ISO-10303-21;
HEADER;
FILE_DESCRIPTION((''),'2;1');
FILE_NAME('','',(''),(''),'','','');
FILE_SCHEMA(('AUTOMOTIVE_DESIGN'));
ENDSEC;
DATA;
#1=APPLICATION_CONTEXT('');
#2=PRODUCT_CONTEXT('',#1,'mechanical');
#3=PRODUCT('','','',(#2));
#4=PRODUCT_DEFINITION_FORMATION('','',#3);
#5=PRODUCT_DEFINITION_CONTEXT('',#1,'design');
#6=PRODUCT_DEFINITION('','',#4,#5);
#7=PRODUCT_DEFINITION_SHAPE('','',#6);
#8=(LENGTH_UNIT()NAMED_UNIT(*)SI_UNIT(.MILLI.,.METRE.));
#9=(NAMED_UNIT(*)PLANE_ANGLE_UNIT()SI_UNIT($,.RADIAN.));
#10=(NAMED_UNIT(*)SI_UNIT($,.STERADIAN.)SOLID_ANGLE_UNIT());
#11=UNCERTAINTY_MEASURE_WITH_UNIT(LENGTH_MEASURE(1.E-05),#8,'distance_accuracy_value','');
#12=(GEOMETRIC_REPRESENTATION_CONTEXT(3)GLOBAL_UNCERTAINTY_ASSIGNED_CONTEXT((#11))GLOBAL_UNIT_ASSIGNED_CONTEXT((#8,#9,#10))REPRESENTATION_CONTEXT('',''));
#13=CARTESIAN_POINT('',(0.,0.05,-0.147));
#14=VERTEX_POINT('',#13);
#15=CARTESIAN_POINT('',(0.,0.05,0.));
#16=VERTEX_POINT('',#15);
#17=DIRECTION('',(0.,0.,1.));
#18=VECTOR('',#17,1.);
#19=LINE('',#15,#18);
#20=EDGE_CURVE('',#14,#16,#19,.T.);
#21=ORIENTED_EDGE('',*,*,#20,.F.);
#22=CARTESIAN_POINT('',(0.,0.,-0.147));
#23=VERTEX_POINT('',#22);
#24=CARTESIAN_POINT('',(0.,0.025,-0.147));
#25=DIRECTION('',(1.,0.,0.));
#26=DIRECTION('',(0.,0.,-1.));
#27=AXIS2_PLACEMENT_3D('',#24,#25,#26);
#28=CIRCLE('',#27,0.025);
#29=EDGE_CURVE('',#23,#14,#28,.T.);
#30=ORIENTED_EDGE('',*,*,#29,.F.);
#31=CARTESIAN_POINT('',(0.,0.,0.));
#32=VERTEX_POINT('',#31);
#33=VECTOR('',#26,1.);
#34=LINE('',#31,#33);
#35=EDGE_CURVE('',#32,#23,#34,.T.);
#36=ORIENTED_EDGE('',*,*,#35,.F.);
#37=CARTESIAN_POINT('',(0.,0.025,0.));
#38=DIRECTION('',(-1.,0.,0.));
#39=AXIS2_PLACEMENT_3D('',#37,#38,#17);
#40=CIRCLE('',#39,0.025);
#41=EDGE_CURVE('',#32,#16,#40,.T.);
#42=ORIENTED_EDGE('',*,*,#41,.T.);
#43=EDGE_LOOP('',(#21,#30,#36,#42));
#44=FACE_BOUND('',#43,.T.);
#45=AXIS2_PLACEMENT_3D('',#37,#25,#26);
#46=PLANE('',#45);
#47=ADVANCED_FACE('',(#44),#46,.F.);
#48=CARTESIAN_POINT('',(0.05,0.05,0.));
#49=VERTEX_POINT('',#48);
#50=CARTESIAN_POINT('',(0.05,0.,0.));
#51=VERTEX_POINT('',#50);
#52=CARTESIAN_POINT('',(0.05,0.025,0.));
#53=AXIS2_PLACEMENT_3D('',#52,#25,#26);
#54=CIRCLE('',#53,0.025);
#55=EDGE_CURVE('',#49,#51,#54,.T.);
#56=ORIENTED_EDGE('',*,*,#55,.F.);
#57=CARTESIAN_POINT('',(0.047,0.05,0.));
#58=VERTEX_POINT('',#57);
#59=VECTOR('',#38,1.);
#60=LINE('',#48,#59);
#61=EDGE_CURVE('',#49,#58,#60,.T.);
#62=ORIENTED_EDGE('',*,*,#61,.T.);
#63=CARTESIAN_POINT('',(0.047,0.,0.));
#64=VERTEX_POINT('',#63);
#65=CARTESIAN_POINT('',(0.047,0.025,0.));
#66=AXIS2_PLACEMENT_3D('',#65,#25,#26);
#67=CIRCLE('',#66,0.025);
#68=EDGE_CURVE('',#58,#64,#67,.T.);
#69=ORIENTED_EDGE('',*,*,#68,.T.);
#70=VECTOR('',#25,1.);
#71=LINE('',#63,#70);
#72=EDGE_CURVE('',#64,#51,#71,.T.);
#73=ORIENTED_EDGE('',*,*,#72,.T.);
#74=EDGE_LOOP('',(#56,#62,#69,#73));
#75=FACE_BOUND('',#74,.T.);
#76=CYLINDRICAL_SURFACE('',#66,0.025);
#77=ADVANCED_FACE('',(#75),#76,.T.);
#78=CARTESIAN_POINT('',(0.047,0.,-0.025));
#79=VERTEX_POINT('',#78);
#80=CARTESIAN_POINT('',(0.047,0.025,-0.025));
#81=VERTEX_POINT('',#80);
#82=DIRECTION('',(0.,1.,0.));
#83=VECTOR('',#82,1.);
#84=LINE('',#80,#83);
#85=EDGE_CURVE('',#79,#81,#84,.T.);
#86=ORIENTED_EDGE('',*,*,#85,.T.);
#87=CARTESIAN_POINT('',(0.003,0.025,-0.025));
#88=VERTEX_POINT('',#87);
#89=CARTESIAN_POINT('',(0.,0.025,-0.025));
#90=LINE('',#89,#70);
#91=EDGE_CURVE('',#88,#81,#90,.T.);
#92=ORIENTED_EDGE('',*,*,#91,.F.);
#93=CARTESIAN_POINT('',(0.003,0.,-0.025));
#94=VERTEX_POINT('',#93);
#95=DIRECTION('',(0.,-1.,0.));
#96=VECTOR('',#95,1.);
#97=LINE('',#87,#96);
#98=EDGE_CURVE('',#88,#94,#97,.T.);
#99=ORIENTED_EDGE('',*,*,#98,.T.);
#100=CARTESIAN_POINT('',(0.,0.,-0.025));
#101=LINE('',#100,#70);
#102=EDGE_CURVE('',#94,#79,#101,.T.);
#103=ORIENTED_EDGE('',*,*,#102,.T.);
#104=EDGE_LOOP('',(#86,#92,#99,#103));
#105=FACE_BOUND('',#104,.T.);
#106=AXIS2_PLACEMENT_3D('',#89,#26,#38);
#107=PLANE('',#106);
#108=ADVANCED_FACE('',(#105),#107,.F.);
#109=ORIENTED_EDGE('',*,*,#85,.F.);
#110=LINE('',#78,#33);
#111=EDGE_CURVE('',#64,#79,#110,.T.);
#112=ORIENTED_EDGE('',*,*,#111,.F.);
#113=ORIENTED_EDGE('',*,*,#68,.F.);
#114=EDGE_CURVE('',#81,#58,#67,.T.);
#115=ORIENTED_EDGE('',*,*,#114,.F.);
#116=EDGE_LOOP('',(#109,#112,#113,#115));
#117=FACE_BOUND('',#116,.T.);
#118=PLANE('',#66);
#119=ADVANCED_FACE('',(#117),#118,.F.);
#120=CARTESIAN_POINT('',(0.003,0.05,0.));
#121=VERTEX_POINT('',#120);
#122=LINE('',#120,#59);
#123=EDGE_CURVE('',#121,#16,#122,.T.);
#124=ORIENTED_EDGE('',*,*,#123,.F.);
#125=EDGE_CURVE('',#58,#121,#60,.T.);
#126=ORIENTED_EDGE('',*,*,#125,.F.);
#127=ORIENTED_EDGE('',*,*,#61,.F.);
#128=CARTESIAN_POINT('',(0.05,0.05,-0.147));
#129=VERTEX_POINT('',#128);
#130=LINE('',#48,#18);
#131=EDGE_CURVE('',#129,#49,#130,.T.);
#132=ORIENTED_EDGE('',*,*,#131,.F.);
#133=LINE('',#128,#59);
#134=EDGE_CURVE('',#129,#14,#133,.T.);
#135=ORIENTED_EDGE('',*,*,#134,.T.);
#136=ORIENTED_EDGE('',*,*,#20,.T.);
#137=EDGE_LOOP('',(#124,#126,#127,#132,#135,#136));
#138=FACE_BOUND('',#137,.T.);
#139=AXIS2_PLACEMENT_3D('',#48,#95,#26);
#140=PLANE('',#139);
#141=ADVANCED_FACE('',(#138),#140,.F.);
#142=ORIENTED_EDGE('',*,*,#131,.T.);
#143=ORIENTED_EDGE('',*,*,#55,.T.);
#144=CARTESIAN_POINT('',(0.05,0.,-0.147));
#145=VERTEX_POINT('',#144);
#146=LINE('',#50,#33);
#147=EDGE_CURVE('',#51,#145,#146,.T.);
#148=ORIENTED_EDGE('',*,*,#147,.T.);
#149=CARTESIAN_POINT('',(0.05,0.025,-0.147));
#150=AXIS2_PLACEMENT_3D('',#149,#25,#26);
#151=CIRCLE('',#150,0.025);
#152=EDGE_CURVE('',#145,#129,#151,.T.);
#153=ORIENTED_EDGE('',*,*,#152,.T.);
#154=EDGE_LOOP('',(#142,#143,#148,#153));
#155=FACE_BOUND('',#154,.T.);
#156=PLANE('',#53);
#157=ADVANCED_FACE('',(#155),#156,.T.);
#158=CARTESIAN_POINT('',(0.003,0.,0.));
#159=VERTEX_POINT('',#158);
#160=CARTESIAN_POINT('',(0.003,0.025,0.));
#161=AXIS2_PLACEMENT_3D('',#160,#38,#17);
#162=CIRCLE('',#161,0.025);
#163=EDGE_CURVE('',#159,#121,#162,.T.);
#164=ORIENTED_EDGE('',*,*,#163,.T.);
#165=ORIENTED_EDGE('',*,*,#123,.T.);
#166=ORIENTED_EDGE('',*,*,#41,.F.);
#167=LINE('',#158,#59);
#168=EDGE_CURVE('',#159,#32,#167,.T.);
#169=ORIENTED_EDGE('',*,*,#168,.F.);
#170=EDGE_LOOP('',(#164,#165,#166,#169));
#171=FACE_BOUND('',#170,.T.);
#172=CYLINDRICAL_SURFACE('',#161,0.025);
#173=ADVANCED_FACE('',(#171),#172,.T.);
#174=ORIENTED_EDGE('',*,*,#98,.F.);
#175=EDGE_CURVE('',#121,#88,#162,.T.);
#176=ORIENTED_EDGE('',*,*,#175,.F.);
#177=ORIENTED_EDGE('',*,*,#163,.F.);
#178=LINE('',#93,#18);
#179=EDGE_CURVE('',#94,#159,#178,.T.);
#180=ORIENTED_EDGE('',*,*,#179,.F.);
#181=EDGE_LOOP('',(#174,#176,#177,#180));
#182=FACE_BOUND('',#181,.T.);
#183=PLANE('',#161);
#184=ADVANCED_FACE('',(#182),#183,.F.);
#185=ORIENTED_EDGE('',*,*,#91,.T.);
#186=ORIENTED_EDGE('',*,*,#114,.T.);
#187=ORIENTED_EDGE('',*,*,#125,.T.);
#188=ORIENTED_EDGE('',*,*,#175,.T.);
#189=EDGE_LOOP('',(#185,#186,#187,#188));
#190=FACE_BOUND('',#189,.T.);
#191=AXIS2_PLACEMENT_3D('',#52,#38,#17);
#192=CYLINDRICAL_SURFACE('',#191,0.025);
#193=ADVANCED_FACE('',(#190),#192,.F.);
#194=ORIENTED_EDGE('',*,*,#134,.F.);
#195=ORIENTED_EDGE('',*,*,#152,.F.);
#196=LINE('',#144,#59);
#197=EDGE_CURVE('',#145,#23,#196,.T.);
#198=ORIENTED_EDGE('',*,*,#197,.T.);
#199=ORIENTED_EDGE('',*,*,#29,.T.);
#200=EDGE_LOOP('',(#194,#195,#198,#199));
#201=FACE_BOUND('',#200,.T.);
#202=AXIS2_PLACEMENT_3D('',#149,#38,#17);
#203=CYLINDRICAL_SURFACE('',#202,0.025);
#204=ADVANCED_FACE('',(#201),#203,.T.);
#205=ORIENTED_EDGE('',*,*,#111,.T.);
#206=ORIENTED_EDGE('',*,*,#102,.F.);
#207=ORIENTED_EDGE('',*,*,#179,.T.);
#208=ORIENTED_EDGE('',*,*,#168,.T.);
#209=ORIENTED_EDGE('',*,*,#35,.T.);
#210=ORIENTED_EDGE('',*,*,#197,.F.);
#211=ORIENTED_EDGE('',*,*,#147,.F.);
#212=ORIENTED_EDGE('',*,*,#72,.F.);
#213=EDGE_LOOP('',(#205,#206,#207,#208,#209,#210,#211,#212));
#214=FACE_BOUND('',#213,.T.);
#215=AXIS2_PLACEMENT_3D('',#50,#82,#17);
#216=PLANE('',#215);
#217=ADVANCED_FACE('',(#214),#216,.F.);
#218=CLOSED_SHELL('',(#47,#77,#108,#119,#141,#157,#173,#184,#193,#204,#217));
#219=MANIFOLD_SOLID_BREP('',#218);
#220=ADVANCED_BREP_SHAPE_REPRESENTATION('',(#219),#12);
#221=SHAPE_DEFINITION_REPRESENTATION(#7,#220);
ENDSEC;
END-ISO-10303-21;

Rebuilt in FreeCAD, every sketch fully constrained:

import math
import FreeCAD as App
import Part
import Sketcher
from FreeCAD import Vector
Q = App.Units.Quantity

doc = App.newDocument("Part")
params = doc.addObject("Spreadsheet::Sheet", "Params")
for row, (alias, value) in enumerate([
    ("pad1_length", "0.05 mm"),
    ("pocket1_length", "0.05 mm"),
    ("sketch3_diameter", "0.05 mm"),
    ("pad2_length", "0.003 mm"),
    ("sketch4_diameter", "0.05 mm"),
    ("pad3_length", "0.003 mm"),
    ("pad4_length", "0.003 mm"),
    ("pad5_length", "0.003 mm"),
], start=1):
    params.set(f"A{row}", alias)
    params.set(f"B{row}", "=" + value)
    params.setAlias(f"B{row}", alias)

body = doc.addObject("PartDesign::Body", "Body")

# Sketch on YZ plane
sketch1 = body.newObject("Sketcher::SketchObject", "Sketch")
sketch1.AttachmentSupport = (doc.getObject("YZ_Plane"), [""])
sketch1.MapMode = "FlatFace"
sketch1.addGeometry([
    Part.LineSegment(Vector(0, 0, 0), Vector(0, -0.147, 0)),
    Part.ArcOfCircle(Part.Circle(Vector(0.025, -0.147, 0), Vector(0, 0, 1), 0.025), math.radians(180), math.radians(360)),
    Part.LineSegment(Vector(0.05, -0.147, 0), Vector(0.05, 0, 0)),
    Part.ArcOfCircle(Part.Circle(Vector(0.025, 0, 0), Vector(0, 0, 1), 0.025), math.radians(180), math.radians(360)),
], False)
sketch1.addConstraint([
    Sketcher.Constraint("Tangent", 0, 2, 1, 1),
    Sketcher.Constraint("Tangent", 1, 2, 2, 1),
    Sketcher.Constraint("Tangent", 2, 2, 3, 2),
    Sketcher.Constraint("Tangent", 3, 1, 0, 1),
    Sketcher.Constraint("Vertical", 0),
    Sketcher.Constraint("Vertical", 2),
    Sketcher.Constraint("Coincident", 3, 1, -1, 1),
    Sketcher.Constraint("Radius", 1, Q("0.025 mm")),
    Sketcher.Constraint("DistanceY", 0, 2, 0, 1, Q("0.147 mm")),
])
pad1 = body.newObject("PartDesign::Pad", "Pad")
pad1.Profile = sketch1
pad1.setExpression("Length", "Params.pad1_length")

# Sketch on YZ plane
sketch2 = body.newObject("Sketcher::SketchObject", "Sketch001")
sketch2.AttachmentSupport = (doc.getObject("YZ_Plane"), [""])
sketch2.MapMode = "FlatFace"
sketch2.AttachmentOffset = App.Placement(Vector(0, 0, 0.05), App.Rotation())
sketch2.addGeometry([
    Part.LineSegment(Vector(0.025, 0, 0), Vector(0, 0, 0)),
    Part.LineSegment(Vector(0, 0, 0), Vector(0, -0.025, 0)),
    Part.LineSegment(Vector(0, -0.025, 0), Vector(0.025, -0.025, 0)),
    Part.LineSegment(Vector(0.025, -0.025, 0), Vector(0.025, 0, 0)),
], False)
sketch2.addConstraint([
    Sketcher.Constraint("Coincident", 0, 2, 1, 1),
    Sketcher.Constraint("Coincident", 1, 2, 2, 1),
    Sketcher.Constraint("Coincident", 2, 2, 3, 1),
    Sketcher.Constraint("Coincident", 3, 2, 0, 1),
    Sketcher.Constraint("Horizontal", 0),
    Sketcher.Constraint("Vertical", 1),
    Sketcher.Constraint("Horizontal", 2),
    Sketcher.Constraint("Vertical", 3),
    Sketcher.Constraint("Coincident", 0, 2, -1, 1),
    Sketcher.Constraint("Equal", 2, 1),
    Sketcher.Constraint("DistanceX", 0, 2, 0, 1, Q("0.025 mm")),
])
pocket1 = body.newObject("PartDesign::Pocket", "Pocket")
pocket1.Profile = sketch2
pocket1.setExpression("Length", "Params.pocket1_length")

# Sketch on YZ plane
sketch3 = body.newObject("Sketcher::SketchObject", "Sketch002")
sketch3.AttachmentSupport = (doc.getObject("YZ_Plane"), [""])
sketch3.MapMode = "FlatFace"
sketch3.AttachmentOffset = App.Placement(Vector(0, 0, 0.05), App.Rotation())
sketch3.addGeometry(Part.Circle(Vector(0.025, 0, 0), Vector(0, 0, 1), 0.025), False)
sketch3.addConstraint([
    Sketcher.Constraint("PointOnObject", 0, 3, -1),
    Sketcher.Constraint("Diameter", 0, Q("0.05 mm")),
    Sketcher.Constraint("DistanceX", -1, 1, 0, 3, Q("0.025 mm")),
])
sketch3.setExpression("Constraints[1]", "Params.sketch3_diameter")
pad2 = body.newObject("PartDesign::Pad", "Pad001")
pad2.Profile = sketch3
pad2.setExpression("Length", "Params.pad2_length")
pad2.Reversed = True

# Sketch on YZ plane
sketch4 = body.newObject("Sketcher::SketchObject", "Sketch003")
sketch4.AttachmentSupport = (doc.getObject("YZ_Plane"), [""])
sketch4.MapMode = "FlatFace"
sketch4.addGeometry(Part.Circle(Vector(0.025, 0, 0), Vector(0, 0, 1), 0.025), False)
sketch4.addConstraint([
    Sketcher.Constraint("PointOnObject", 0, 3, -1),
    Sketcher.Constraint("Diameter", 0, Q("0.05 mm")),
    Sketcher.Constraint("DistanceX", -1, 1, 0, 3, Q("0.025 mm")),
])
sketch4.setExpression("Constraints[1]", "Params.sketch4_diameter")
pad3 = body.newObject("PartDesign::Pad", "Pad002")
pad3.Profile = sketch4
pad3.setExpression("Length", "Params.pad3_length")

# Sketch on YZ plane
sketch5 = body.newObject("Sketcher::SketchObject", "Sketch004")
sketch5.AttachmentSupport = (doc.getObject("YZ_Plane"), [""])
sketch5.MapMode = "FlatFace"
sketch5.addGeometry([
    Part.LineSegment(Vector(0.025, -0.025, 0), Vector(0, -0.025, 0)),
    Part.LineSegment(Vector(0, -0.025, 0), Vector(0, 0, 0)),
    Part.LineSegment(Vector(0, 0, 0), Vector(0.025, 0, 0)),
    Part.LineSegment(Vector(0.025, 0, 0), Vector(0.025, -0.025, 0)),
], False)
sketch5.addConstraint([
    Sketcher.Constraint("Coincident", 0, 2, 1, 1),
    Sketcher.Constraint("Coincident", 1, 2, 2, 1),
    Sketcher.Constraint("Coincident", 2, 2, 3, 1),
    Sketcher.Constraint("Coincident", 3, 2, 0, 1),
    Sketcher.Constraint("Horizontal", 0),
    Sketcher.Constraint("Vertical", 1),
    Sketcher.Constraint("Horizontal", 2),
    Sketcher.Constraint("Vertical", 3),
    Sketcher.Constraint("Coincident", 1, 2, -1, 1),
    Sketcher.Constraint("Equal", 2, 1),
    Sketcher.Constraint("DistanceX", 0, 2, 0, 1, Q("0.025 mm")),
])
pad4 = body.newObject("PartDesign::Pad", "Pad003")
pad4.Profile = sketch5
pad4.setExpression("Length", "Params.pad4_length")

# Sketch on YZ plane
sketch6 = body.newObject("Sketcher::SketchObject", "Sketch005")
sketch6.AttachmentSupport = (doc.getObject("YZ_Plane"), [""])
sketch6.MapMode = "FlatFace"
sketch6.AttachmentOffset = App.Placement(Vector(0, 0, 0.05), App.Rotation())
sketch6.addGeometry([
    Part.LineSegment(Vector(0.025, 0, 0), Vector(0, 0, 0)),
    Part.LineSegment(Vector(0, 0, 0), Vector(0, -0.025, 0)),
    Part.LineSegment(Vector(0, -0.025, 0), Vector(0.025, -0.025, 0)),
    Part.LineSegment(Vector(0.025, -0.025, 0), Vector(0.025, 0, 0)),
], False)
sketch6.addConstraint([
    Sketcher.Constraint("Coincident", 0, 2, 1, 1),
    Sketcher.Constraint("Coincident", 1, 2, 2, 1),
    Sketcher.Constraint("Coincident", 2, 2, 3, 1),
    Sketcher.Constraint("Coincident", 3, 2, 0, 1),
    Sketcher.Constraint("Horizontal", 0),
    Sketcher.Constraint("Vertical", 1),
    Sketcher.Constraint("Horizontal", 2),
    Sketcher.Constraint("Vertical", 3),
    Sketcher.Constraint("Coincident", 0, 2, -1, 1),
    Sketcher.Constraint("Equal", 2, 1),
    Sketcher.Constraint("DistanceX", 0, 2, 0, 1, Q("0.025 mm")),
])
pad5 = body.newObject("PartDesign::Pad", "Pad004")
pad5.Profile = sketch6
pad5.setExpression("Length", "Params.pad5_length")
pad5.Reversed = True

doc.recompute()
